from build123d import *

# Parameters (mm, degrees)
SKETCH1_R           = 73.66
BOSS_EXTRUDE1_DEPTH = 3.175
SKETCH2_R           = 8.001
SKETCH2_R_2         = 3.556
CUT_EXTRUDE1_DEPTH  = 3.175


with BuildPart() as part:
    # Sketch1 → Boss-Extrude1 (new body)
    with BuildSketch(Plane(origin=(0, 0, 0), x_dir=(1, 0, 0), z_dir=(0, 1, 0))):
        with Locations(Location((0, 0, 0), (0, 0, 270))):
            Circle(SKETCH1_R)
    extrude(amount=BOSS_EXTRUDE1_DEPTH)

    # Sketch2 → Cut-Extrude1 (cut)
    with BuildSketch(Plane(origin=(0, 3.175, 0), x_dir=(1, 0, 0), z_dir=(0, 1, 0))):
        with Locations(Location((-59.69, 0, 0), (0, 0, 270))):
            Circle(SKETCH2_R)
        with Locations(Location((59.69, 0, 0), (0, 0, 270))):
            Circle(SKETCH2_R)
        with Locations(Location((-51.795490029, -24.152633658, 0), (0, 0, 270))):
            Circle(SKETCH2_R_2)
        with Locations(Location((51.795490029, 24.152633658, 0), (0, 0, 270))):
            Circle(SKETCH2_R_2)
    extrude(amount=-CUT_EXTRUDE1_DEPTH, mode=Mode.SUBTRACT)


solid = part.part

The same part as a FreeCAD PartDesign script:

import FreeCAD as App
import Part
import Sketcher
from FreeCAD import Vector
Q = App.Units.Quantity

doc = App.newDocument("Part")
params = doc.addObject("Spreadsheet::Sheet", "Params")
for row, (alias, value) in enumerate([
    ("sketch1_diameter", "5.8 in"),
    ("pad1_length", "0.125 in"),
    ("sketch2_diameter", "0.63 in"),
    ("sketch2_diameter2", "0.28 in"),
    ("pocket1_length", "0.125 in"),
], start=1):
    params.set(f"A{row}", alias)
    params.set(f"B{row}", "=" + value)
    params.setAlias(f"B{row}", alias)

body = doc.addObject("PartDesign::Body", "Body")

# Sketch on XZ plane
sketch1 = body.newObject("Sketcher::SketchObject", "Sketch")
sketch1.AttachmentSupport = (doc.getObject("XZ_Plane"), [""])
sketch1.MapMode = "FlatFace"
sketch1.addGeometry(Part.Circle(Vector(0, 0, 0), Vector(0, 0, 1), 74), False)
sketch1.addConstraint(Sketcher.Constraint("Coincident", 0, 3, -1, 1))
sketch1.addConstraint(Sketcher.Constraint("Diameter", 0, Q("5.8 in")))
sketch1.setExpression("Constraints[1]", "Params.sketch1_diameter")
pad1 = body.newObject("PartDesign::Pad", "Pad")
pad1.Profile = sketch1
pad1.setExpression("Length", "Params.pad1_length")
pad1.Reversed = True

# Sketch on XZ plane
sketch2 = body.newObject("Sketcher::SketchObject", "Sketch001")
sketch2.AttachmentSupport = (doc.getObject("XZ_Plane"), [""])
sketch2.MapMode = "FlatFace"
sketch2.AttachmentOffset = App.Placement(Vector(0, 0, -0.125 * 25.4), App.Rotation())
sketch2.addGeometry(Part.Circle(Vector(-59.7, 0, 0), Vector(0, 0, 1), 8), False)
sketch2.addGeometry(Part.Circle(Vector(59.7, 0, 0), Vector(0, 0, 1), 8), False)
sketch2.addGeometry(Part.Circle(Vector(-51.8, 24.2, 0), Vector(0, 0, 1), 3.6), False)
sketch2.addGeometry(Part.Circle(Vector(51.8, -24.2, 0), Vector(0, 0, 1), 3.6), False)
sketch2.addConstraint(Sketcher.Constraint("Equal", 0, 1))
sketch2.addConstraint(Sketcher.Constraint("Equal", 2, 3))
sketch2.addConstraint(Sketcher.Constraint("Symmetric", 0, 3, 1, 3, -1, 1))
sketch2.addConstraint(Sketcher.Constraint("Symmetric", 2, 3, 3, 3, -1, 1))
sketch2.addConstraint(Sketcher.Constraint("PointOnObject", 0, 3, -1))
sketch2.addConstraint(Sketcher.Constraint("Diameter", 0, Q("0.63 in")))
sketch2.addConstraint(Sketcher.Constraint("Diameter", 2, Q("0.28 in")))
sketch2.addConstraint(Sketcher.Constraint("DistanceX", 0, 3, 1, 3, Q("4.7 in")))
sketch2.addConstraint(Sketcher.Constraint("DistanceX", 2, 3, -1, 1, 51.79549))
sketch2.addConstraint(Sketcher.Constraint("DistanceY", -1, 1, 2, 3, 24.152634))
sketch2.setExpression("Constraints[5]", "Params.sketch2_diameter")
sketch2.setExpression("Constraints[6]", "Params.sketch2_diameter2")
pocket1 = body.newObject("PartDesign::Pocket", "Pocket")
pocket1.Profile = sketch2
pocket1.setExpression("Length", "Params.pocket1_length")
pocket1.Reversed = True

doc.recompute()
